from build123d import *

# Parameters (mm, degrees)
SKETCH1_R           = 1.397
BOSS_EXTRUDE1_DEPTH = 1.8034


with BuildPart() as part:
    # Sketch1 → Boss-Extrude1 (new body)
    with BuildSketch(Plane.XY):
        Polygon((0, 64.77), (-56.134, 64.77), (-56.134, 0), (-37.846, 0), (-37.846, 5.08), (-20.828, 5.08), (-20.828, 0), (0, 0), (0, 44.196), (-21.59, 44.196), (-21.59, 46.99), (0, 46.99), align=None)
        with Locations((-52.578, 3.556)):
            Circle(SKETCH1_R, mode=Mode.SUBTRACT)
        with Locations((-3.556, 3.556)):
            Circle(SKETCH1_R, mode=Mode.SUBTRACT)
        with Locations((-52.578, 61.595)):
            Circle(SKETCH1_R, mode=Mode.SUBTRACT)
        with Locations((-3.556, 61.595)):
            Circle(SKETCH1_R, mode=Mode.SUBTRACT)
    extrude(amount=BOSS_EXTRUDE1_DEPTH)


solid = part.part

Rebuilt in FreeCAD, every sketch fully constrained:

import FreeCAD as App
import Part
import Sketcher

V = App.Vector
Q = App.Units.Quantity

doc = App.newDocument("Part")
body = doc.addObject("PartDesign::Body", "Body")

sketch1 = doc.addObject("Sketcher::SketchObject", "Sketch")
body.addObject(sketch1)
sketch1.AttachmentSupport = (doc.XY_Plane, [""])
sketch1.MapMode = "FlatFace"
sketch1.addGeometry([
    Part.LineSegment(V(0, 64.8, 0), V(-56.1, 64.8, 0)),
    Part.LineSegment(V(-56.1, 64.8, 0), V(-56.1, 0, 0)),
    Part.LineSegment(V(-56.1, 0, 0), V(-37.8, 0, 0)),
    Part.LineSegment(V(-37.8, 0, 0), V(-37.8, 5.1, 0)),
    Part.LineSegment(V(-37.8, 5.1, 0), V(-20.8, 5.1, 0)),
    Part.LineSegment(V(-20.8, 5.1, 0), V(-20.8, 0, 0)),
    Part.LineSegment(V(-20.8, 0, 0), V(0, 0, 0)),
    Part.LineSegment(V(0, 0, 0), V(0, 44.2, 0)),
    Part.LineSegment(V(0, 44.2, 0), V(-21.6, 44.2, 0)),
    Part.LineSegment(V(-21.6, 44.2, 0), V(-21.6, 47, 0)),
    Part.LineSegment(V(-21.6, 47, 0), V(0, 47, 0)),
    Part.LineSegment(V(0, 47, 0), V(0, 64.8, 0)),
    Part.Circle(V(-52.6, 3.6, 0), V(0, 0, 1), 1.4),
    Part.Circle(V(-3.6, 3.6, 0), V(0, 0, 1), 1.4),
    Part.Circle(V(-52.6, 61.6, 0), V(0, 0, 1), 1.4),
    Part.Circle(V(-3.6, 61.6, 0), V(0, 0, 1), 1.4),
], False)
sketch1.addConstraint([
    Sketcher.Constraint("Coincident", 0, 2, 1, 1),
    Sketcher.Constraint("Coincident", 1, 2, 2, 1),
    Sketcher.Constraint("Coincident", 2, 2, 3, 1),
    Sketcher.Constraint("Coincident", 3, 2, 4, 1),
    Sketcher.Constraint("Coincident", 4, 2, 5, 1),
    Sketcher.Constraint("Coincident", 5, 2, 6, 1),
    Sketcher.Constraint("Coincident", 6, 2, 7, 1),
    Sketcher.Constraint("Coincident", 7, 2, 8, 1),
    Sketcher.Constraint("Coincident", 8, 2, 9, 1),
    Sketcher.Constraint("Coincident", 9, 2, 10, 1),
    Sketcher.Constraint("Coincident", 10, 2, 11, 1),
    Sketcher.Constraint("Coincident", 11, 2, 0, 1),
    Sketcher.Constraint("Horizontal", 0),
    Sketcher.Constraint("Vertical", 1),
    Sketcher.Constraint("Horizontal", 2),
    Sketcher.Constraint("Vertical", 3),
    Sketcher.Constraint("Horizontal", 4),
    Sketcher.Constraint("Vertical", 5),
    Sketcher.Constraint("Horizontal", 6),
    Sketcher.Constraint("Vertical", 7),
    Sketcher.Constraint("Horizontal", 8),
    Sketcher.Constraint("Vertical", 9),
    Sketcher.Constraint("Horizontal", 10),
    Sketcher.Constraint("Vertical", 11),
    Sketcher.Constraint("Coincident", 6, 2, -1, 1),
    Sketcher.Constraint("Equal", 12, 13),
    Sketcher.Constraint("Equal", 13, 14),
    Sketcher.Constraint("Equal", 14, 15),
    Sketcher.Constraint("PointOnObject", 1, 2, -1),
    Sketcher.Constraint("PointOnObject", 10, 2, -2),
    Sketcher.Constraint("Horizontal", 12, 3, 13, 3),
    Sketcher.Constraint("Horizontal", 14, 3, 15, 3),
    Sketcher.Constraint("Vertical", 12, 3, 14, 3),
    Sketcher.Constraint("Vertical", 13, 3, 15, 3),
    Sketcher.Constraint("Diameter", 12, Q("0.11 in")),
    Sketcher.Constraint("DistanceY", 3, 1, 3, 2, Q("0.2 in")),
    Sketcher.Constraint("DistanceY", 11, 1, 11, 2, Q("0.7 in")),
    Sketcher.Constraint("DistanceX", 0, 2, 0, 1, Q("2.21 in")),
    Sketcher.Constraint("DistanceX", 2, 1, 2, 2, Q("0.72 in")),
    Sketcher.Constraint("DistanceX", 4, 1, 4, 2, Q("0.67 in")),
    Sketcher.Constraint("DistanceX", 8, 2, 8, 1, Q("0.85 in")),
    Sketcher.Constraint("DistanceY", 1, 2, 1, 1, Q("2.55 in")),
    Sketcher.Constraint("DistanceY", 7, 1, 7, 2, Q("1.74 in")),
    Sketcher.Constraint("DistanceY", 13, 3, 7, 2, Q("1.6 in")),
    Sketcher.Constraint("DistanceX", 12, 3, -1, 1, Q("2.07 in")),
    Sketcher.Constraint("DistanceX", 13, 3, -1, 1, Q("0.14 in")),
    Sketcher.Constraint("DistanceY", -1, 1, 14, 3, Q("2.425 in")),
])
pad1 = doc.addObject("PartDesign::Pad", "Pad")
body.addObject(pad1)
pad1.Profile = sketch1
pad1.Length = Q("0.071 in")

doc.recompute()
